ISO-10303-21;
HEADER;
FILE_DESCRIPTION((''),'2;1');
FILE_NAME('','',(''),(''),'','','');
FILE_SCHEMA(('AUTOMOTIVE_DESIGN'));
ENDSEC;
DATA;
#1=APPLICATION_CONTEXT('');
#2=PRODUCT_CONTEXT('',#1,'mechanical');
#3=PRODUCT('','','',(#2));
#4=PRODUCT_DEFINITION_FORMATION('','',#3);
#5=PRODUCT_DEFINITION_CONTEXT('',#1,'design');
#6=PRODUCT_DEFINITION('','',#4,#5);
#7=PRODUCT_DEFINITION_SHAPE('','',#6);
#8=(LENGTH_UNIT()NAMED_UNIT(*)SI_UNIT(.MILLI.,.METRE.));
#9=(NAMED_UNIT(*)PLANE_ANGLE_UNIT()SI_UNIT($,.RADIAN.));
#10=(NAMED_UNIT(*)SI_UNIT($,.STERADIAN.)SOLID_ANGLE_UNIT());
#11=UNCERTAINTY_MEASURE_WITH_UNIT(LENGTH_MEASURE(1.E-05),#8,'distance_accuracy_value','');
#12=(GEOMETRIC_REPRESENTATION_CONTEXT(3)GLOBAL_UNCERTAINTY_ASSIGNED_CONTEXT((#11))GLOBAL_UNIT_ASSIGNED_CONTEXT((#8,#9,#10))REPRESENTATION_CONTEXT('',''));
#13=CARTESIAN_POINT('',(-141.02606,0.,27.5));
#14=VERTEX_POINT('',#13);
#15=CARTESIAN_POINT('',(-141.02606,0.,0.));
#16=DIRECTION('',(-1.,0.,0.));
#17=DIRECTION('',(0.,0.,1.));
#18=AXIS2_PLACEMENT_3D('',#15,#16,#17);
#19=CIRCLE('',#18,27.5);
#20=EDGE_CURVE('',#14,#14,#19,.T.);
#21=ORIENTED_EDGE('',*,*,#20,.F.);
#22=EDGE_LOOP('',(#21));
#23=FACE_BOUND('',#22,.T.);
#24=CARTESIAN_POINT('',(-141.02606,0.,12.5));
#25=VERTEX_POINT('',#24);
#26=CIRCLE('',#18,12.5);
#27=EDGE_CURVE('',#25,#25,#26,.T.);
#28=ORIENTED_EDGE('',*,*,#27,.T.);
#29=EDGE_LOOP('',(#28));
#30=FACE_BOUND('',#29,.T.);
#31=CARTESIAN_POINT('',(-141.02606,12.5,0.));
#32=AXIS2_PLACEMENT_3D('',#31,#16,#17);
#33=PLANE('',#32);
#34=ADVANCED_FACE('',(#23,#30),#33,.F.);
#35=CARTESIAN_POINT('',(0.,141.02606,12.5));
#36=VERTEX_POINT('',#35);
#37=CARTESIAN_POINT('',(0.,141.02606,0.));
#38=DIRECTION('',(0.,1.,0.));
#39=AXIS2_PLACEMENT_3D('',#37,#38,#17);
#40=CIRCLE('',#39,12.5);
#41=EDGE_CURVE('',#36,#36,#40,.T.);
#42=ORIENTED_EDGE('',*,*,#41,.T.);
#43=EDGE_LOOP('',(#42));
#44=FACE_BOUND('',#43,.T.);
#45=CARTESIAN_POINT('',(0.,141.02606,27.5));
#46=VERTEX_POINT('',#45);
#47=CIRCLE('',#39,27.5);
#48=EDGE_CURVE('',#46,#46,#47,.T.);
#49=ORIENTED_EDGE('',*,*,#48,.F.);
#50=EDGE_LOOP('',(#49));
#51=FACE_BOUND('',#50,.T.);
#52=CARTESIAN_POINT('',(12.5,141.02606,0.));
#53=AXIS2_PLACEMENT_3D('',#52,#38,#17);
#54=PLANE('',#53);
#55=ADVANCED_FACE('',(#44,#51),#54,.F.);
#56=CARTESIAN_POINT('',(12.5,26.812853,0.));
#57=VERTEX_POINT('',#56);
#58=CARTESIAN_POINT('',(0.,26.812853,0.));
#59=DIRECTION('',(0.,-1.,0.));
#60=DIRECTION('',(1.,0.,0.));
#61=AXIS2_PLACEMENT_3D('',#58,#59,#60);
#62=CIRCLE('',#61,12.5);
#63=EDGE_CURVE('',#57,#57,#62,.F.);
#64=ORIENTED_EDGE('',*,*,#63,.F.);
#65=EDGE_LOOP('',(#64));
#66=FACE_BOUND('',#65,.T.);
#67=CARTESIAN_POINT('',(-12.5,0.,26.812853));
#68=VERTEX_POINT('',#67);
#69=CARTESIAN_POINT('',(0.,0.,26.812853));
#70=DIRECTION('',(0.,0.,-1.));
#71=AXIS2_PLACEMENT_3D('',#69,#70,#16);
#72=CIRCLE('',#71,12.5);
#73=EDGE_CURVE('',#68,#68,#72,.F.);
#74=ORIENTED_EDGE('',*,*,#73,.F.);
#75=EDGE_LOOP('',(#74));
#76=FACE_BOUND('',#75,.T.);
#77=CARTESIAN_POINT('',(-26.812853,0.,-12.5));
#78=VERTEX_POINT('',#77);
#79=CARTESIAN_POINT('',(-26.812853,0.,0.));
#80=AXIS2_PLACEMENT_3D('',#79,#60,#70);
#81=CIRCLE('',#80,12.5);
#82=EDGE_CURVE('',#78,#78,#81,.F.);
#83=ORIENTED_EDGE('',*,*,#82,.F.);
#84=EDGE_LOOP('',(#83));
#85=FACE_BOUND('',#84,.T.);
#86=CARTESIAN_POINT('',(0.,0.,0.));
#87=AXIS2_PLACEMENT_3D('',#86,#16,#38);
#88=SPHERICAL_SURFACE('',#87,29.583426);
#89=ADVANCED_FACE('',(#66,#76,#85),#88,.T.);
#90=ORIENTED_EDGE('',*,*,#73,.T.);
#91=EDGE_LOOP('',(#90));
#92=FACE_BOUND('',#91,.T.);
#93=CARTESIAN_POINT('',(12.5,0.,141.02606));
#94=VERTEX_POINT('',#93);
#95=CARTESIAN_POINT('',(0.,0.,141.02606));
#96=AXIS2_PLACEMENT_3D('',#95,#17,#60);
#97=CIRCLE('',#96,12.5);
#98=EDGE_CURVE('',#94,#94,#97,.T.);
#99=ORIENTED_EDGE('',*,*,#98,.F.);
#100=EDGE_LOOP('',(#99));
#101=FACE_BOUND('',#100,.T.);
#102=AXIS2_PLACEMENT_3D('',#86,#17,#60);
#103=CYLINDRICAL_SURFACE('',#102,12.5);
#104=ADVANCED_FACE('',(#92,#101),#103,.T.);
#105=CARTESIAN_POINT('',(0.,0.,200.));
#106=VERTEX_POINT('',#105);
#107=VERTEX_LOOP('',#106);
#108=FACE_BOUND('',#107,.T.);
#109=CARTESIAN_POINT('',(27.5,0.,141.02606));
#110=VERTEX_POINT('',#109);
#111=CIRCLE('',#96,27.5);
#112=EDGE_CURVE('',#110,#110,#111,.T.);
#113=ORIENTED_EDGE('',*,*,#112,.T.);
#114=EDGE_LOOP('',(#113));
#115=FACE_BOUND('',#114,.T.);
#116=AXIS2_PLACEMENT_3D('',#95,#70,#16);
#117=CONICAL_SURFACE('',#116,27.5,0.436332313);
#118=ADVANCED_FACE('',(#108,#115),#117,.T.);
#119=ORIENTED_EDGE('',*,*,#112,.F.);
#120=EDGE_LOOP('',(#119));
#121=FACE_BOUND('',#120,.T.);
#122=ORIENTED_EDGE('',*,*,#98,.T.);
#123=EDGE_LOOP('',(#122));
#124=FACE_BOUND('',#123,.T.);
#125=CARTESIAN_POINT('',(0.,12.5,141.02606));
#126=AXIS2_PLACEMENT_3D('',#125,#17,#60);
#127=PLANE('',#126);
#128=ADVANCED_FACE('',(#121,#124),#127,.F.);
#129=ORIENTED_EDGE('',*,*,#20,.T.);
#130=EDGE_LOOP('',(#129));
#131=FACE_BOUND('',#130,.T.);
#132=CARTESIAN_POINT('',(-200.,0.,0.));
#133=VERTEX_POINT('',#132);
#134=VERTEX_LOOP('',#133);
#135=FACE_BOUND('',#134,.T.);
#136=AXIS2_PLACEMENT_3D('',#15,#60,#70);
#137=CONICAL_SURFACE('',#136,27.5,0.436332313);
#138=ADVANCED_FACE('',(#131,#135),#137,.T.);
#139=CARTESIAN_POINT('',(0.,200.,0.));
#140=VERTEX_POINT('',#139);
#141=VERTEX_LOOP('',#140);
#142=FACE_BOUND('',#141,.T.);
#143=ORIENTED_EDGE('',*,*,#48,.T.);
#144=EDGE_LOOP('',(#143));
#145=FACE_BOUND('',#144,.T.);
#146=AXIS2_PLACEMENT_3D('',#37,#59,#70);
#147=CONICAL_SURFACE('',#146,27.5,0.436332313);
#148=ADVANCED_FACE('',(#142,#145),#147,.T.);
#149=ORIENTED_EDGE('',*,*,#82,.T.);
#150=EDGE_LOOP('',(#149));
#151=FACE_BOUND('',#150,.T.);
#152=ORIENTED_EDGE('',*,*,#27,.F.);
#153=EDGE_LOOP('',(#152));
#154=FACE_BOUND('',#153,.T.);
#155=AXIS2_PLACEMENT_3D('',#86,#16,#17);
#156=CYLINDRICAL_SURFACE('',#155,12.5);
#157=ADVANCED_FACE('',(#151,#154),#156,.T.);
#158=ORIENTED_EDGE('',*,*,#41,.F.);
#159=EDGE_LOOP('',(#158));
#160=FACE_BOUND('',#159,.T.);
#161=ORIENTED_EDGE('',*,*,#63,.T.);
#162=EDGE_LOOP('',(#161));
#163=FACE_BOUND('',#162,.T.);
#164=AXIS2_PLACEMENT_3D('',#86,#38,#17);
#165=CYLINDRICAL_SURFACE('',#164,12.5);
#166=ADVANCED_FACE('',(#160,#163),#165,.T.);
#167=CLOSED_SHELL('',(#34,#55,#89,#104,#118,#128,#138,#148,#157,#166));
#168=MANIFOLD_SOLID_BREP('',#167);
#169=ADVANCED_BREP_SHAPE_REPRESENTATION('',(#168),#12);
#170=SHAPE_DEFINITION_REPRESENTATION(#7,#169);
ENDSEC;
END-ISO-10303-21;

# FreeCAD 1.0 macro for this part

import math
import FreeCAD as App
import Part
import Sketcher
from FreeCAD import Vector
Q = App.Units.Quantity


def add_polygon(sketch, points):
    """Adds a closed chain of lines whose ends are joined by coincident constraints."""
    first, n = sketch.GeometryCount, len(points)
    for a, b in zip(points, points[1:] + points[:1]):
        sketch.addGeometry(Part.LineSegment(App.Vector(*a, 0), App.Vector(*b, 0)), False)
    for i in range(n):
        sketch.addConstraint(Sketcher.Constraint("Coincident", first + i, 2, first + (i + 1) % n, 1))

doc = App.newDocument("Part")
params = doc.addObject("Spreadsheet::Sheet", "Params")
for row, (alias, value) in enumerate([
    ("sketch1_width", "200 mm"),
    ("sketch1_height", "15 mm"),
    ("sketch1_height2", "12.5 mm"),
    ("revolution_angle", "360 deg"),
    ("revolution2_angle", "360 deg"),
], start=1):
    params.set(f"A{row}", alias)
    params.set(f"B{row}", "=" + value)
    params.setAlias(f"B{row}", alias)

body = doc.addObject("PartDesign::Body", "Body")

# Sketch on XY plane
sketch1 = body.newObject("Sketcher::SketchObject", "Sketch")
sketch1.AttachmentSupport = (doc.getObject("XY_Plane"), [""])
sketch1.MapMode = "FlatFace"
add_polygon(sketch1, [(0, 0), (0, 12), (-141, 12), (-141, 28), (-200, 0)])  # lines 0-4
sketch1.addConstraint([
    Sketcher.Constraint("Vertical", 0),
    Sketcher.Constraint("Horizontal", 1),
    Sketcher.Constraint("Vertical", 2),
    Sketcher.Constraint("Horizontal", 4),
    Sketcher.Constraint("Coincident", 4, 2, -1, 1),
    Sketcher.Constraint("DistanceX", 4, 1, 4, 2, 200.0),
    Sketcher.Constraint("DistanceY", 2, 1, 2, 2, 15.0),
    Sketcher.Constraint("Angle", 3, Q("-155 deg")),
    Sketcher.Constraint("DistanceY", 0, 1, 0, 2, 12.5),
])
sketch1.setExpression("Constraints[10]", "Params.sketch1_width")
sketch1.setExpression("Constraints[11]", "Params.sketch1_height")
sketch1.setExpression("Constraints[13]", "Params.sketch1_height2")
revolution = body.newObject("PartDesign::Revolution", "Revolution")
revolution.Profile = sketch1
revolution.ReferenceAxis = (sketch1, ["H_Axis"])
revolution.setExpression("Angle", "Params.revolution_angle")
doc.recompute()

polarpattern = body.newObject("PartDesign::PolarPattern", "PolarPattern")
polarpattern.Originals = [revolution]
polarpattern.Axis = (doc.getObject("Y_Axis"), [""])
polarpattern.Angle = 90
polarpattern.Occurrences = 2
body.Tip = polarpattern
doc.recompute()

polarpattern2 = body.newObject("PartDesign::PolarPattern", "PolarPattern001")
polarpattern2.Originals = [revolution]
polarpattern2.Axis = (doc.getObject("Z_Axis"), [""])
polarpattern2.Angle = 90
polarpattern2.Occurrences = 2
polarpattern2.Reversed = True
body.Tip = polarpattern2

# Sketch on XY plane
sketch2 = body.newObject("Sketcher::SketchObject", "Sketch001")
sketch2.AttachmentSupport = (doc.getObject("XY_Plane"), [""])
sketch2.MapMode = "FlatFace"
sketch2.addGeometry([
    Part.LineSegment(Vector(30, 0, 0), Vector(-30, 0, 0)),
    Part.ArcOfCircle(Part.Circle(Vector(0, 0, 0), Vector(0, 0, 1), 30), math.radians(180), math.radians(360)),
], False)
sketch2.addConstraint([
    Sketcher.Constraint("Coincident", 0, 1, 1, 2),
    Sketcher.Constraint("Coincident", 1, 1, 0, 2),
    Sketcher.Constraint("Horizontal", 0),
    Sketcher.Constraint("Coincident", 1, 3, -1, 1),
    Sketcher.Constraint("PointOnObject", 0, 1, -1),
    Sketcher.Constraint("Radius", 1, 29.583426),
])
revolution2 = body.newObject("PartDesign::Revolution", "Revolution001")
revolution2.Profile = sketch2
revolution2.ReferenceAxis = (sketch2, ["H_Axis"])
revolution2.setExpression("Angle", "Params.revolution2_angle")

doc.recompute()
